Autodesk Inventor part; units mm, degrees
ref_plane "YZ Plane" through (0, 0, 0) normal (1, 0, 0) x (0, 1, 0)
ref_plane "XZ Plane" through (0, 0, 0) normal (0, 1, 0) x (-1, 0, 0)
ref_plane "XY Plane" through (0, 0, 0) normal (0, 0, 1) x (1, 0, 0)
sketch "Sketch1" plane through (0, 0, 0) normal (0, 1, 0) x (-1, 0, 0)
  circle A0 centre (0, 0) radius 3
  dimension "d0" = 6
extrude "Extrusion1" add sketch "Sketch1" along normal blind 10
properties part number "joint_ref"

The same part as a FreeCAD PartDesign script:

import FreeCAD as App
import Part
import Sketcher
from FreeCAD import Vector
Q = App.Units.Quantity

doc = App.newDocument("Part")
body = doc.addObject("PartDesign::Body", "Body")

# Sketch on XZ plane
sketch1 = doc.addObject("Sketcher::SketchObject", "Sketch")
body.addObject(sketch1)
sketch1.AttachmentSupport = (doc.XZ_Plane, [""])
sketch1.MapMode = "FlatFace"
sketch1.addGeometry(Part.Circle(Vector(0, 0, 0), Vector(0, 0, 1), 3), False)
sketch1.addConstraint([
    Sketcher.Constraint("Coincident", 0, 3, -1, 1),
    Sketcher.Constraint("Diameter", 0, Q("6 mm")),
])
pad1 = doc.addObject("PartDesign::Pad", "Pad")
body.addObject(pad1)
pad1.Profile = sketch1
pad1.Length = 10
pad1.Reversed = True

doc.recompute()
